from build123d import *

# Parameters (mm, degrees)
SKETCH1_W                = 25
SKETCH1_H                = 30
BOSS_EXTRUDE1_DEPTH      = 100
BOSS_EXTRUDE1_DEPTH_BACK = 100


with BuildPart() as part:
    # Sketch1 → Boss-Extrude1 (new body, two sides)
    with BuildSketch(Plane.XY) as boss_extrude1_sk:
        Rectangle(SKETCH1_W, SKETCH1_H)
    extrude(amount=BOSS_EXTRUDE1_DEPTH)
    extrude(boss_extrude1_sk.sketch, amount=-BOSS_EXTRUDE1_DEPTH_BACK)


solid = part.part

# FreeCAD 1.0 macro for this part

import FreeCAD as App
import Part
import Sketcher

V = App.Vector
Q = App.Units.Quantity

doc = App.newDocument("Part")
body = doc.addObject("PartDesign::Body", "Body")

# Sketch on XY plane
sketch1 = body.newObject("Sketcher::SketchObject", "Sketch")
sketch1.AttachmentSupport = (doc.getObject("XY_Plane"), [""])
sketch1.MapMode = "FlatFace"
sketch1.addGeometry([
    Part.LineSegment(V(-12, 15, 0), V(-12, -15, 0)),
    Part.LineSegment(V(-12, -15, 0), V(12, -15, 0)),
    Part.LineSegment(V(12, -15, 0), V(12, 15, 0)),
    Part.LineSegment(V(12, 15, 0), V(-12, 15, 0)),
], False)
sketch1.addConstraint([
    Sketcher.Constraint("Coincident", 0, 2, 1, 1),
    Sketcher.Constraint("Coincident", 1, 2, 2, 1),
    Sketcher.Constraint("Coincident", 2, 2, 3, 1),
    Sketcher.Constraint("Coincident", 3, 2, 0, 1),
    Sketcher.Constraint("Vertical", 0),
    Sketcher.Constraint("Horizontal", 1),
    Sketcher.Constraint("Vertical", 2),
    Sketcher.Constraint("Horizontal", 3),
    Sketcher.Constraint("Symmetric", 0, 2, 2, 2, -1, 1),
    Sketcher.Constraint("DistanceX", 1, 1, 1, 2, Q("25 mm")),
    Sketcher.Constraint("DistanceY", 0, 2, 0, 1, Q("30 mm")),
])
pad1 = body.newObject("PartDesign::Pad", "Pad")
pad1.Profile = sketch1
pad1.Type = "TwoLengths"
pad1.Length = 100
pad1.Length2 = 100

doc.recompute()
